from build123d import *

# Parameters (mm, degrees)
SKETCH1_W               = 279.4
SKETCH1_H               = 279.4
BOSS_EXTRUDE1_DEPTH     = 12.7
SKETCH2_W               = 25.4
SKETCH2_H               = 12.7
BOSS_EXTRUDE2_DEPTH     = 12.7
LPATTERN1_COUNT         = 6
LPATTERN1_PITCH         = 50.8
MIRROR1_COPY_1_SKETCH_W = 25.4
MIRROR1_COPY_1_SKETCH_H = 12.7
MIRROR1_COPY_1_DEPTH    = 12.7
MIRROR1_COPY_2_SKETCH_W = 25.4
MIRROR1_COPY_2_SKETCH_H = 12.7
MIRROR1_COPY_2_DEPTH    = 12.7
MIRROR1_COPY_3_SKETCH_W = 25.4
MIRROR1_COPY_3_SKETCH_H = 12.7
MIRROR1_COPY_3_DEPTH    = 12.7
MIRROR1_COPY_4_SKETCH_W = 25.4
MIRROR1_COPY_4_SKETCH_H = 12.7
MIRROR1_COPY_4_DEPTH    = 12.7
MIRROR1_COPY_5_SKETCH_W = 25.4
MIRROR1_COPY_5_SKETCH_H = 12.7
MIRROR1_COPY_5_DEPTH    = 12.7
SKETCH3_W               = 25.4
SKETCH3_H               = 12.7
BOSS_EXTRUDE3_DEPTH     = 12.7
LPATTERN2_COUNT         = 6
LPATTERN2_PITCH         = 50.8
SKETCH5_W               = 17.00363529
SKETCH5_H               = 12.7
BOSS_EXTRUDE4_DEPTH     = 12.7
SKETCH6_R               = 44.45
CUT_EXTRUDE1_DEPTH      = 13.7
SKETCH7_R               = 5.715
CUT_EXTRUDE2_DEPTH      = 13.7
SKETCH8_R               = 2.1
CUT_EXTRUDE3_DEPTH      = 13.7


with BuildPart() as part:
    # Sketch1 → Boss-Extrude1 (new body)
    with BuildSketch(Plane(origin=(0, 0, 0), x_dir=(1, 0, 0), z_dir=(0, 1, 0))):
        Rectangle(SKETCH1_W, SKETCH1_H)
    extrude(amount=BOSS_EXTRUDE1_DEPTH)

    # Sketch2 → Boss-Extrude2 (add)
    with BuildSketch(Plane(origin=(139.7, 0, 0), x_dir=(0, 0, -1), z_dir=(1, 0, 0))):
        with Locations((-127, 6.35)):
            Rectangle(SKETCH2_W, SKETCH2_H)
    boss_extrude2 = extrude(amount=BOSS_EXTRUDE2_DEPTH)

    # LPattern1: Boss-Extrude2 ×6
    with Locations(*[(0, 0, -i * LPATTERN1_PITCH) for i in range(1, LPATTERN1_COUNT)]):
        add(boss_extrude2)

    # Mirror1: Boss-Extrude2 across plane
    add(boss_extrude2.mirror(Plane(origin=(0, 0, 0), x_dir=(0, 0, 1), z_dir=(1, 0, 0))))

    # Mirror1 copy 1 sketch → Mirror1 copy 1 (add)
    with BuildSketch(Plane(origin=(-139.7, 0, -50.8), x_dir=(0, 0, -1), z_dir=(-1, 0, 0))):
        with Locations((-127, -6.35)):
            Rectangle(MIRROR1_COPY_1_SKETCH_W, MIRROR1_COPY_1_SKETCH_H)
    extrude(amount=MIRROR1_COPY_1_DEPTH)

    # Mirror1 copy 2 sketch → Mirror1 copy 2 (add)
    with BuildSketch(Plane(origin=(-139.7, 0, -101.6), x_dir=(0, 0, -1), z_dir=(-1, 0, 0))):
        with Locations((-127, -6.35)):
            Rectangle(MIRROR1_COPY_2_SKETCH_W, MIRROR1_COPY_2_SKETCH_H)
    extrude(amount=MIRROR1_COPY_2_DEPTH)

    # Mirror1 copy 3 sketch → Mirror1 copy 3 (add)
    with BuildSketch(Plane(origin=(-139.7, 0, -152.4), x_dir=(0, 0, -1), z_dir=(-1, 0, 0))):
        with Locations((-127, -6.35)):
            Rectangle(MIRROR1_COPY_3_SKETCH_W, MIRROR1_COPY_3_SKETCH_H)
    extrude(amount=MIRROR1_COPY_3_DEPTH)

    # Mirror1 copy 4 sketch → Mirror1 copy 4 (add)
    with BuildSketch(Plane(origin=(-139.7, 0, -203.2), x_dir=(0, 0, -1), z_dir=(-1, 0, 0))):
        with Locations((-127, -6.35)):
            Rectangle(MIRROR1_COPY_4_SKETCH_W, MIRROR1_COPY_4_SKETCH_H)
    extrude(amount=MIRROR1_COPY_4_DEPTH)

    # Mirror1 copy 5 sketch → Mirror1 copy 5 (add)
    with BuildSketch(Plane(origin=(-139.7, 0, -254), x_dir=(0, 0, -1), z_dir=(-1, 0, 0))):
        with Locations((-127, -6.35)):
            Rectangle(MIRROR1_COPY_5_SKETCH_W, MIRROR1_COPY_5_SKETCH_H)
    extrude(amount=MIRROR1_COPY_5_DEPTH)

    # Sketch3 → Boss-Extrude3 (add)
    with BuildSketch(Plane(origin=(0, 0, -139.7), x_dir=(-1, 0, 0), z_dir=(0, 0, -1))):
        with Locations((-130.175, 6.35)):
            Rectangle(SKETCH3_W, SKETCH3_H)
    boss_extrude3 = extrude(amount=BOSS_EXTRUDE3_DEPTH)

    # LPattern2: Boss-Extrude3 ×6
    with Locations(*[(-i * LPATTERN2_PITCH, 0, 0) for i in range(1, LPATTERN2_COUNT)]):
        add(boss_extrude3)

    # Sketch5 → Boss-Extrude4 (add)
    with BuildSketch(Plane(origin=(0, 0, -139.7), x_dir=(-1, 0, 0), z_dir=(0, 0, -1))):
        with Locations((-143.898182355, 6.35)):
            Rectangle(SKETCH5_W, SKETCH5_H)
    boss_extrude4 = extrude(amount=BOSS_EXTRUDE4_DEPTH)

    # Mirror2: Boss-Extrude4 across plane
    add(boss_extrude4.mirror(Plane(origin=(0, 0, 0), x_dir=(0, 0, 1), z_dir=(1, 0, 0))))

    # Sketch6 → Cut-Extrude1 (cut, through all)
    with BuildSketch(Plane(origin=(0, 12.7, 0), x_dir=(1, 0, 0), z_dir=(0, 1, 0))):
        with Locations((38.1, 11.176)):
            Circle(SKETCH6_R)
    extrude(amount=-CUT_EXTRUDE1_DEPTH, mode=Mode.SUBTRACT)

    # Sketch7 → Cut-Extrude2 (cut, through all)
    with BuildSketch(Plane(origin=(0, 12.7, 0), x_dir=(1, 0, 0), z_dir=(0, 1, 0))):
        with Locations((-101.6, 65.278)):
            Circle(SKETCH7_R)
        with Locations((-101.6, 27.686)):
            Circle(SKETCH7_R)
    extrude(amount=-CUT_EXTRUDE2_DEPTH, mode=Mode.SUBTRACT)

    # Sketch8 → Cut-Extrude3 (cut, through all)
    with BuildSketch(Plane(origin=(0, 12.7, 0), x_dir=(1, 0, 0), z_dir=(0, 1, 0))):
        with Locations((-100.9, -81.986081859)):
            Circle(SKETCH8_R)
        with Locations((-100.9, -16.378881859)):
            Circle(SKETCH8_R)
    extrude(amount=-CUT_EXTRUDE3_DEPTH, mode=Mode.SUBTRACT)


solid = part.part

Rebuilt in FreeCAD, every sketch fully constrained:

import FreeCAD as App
import Part
import Sketcher
Q = App.Units.Quantity


def add_polygon(sketch, points):
    """Adds a closed chain of lines whose ends are joined by coincident constraints."""
    first, n = sketch.GeometryCount, len(points)
    for a, b in zip(points, points[1:] + points[:1]):
        sketch.addGeometry(Part.LineSegment(App.Vector(*a, 0), App.Vector(*b, 0)), False)
    for i in range(n):
        sketch.addConstraint(Sketcher.Constraint("Coincident", first + i, 2, first + (i + 1) % n, 1))

doc = App.newDocument("Part")
body = doc.addObject("PartDesign::Body", "Body")

# Sketch on XZ plane
sketch1 = body.newObject("Sketcher::SketchObject", "Sketch")
sketch1.AttachmentSupport = (doc.getObject("XZ_Plane"), [""])
sketch1.MapMode = "FlatFace"
add_polygon(sketch1, [(-140, -140), (-140, 140), (140, 140), (140, -140)])  # lines 0-3
sketch1.addConstraint(Sketcher.Constraint("Vertical", 0))
sketch1.addConstraint(Sketcher.Constraint("Horizontal", 1))
sketch1.addConstraint(Sketcher.Constraint("Vertical", 2))
sketch1.addConstraint(Sketcher.Constraint("Horizontal", 3))
sketch1.addConstraint(Sketcher.Constraint("Symmetric", 0, 2, 2, 2, -1, 1))
sketch1.addConstraint(Sketcher.Constraint("Equal", 3, 0))
sketch1.addConstraint(Sketcher.Constraint("DistanceX", 1, 1, 1, 2, Q("11 in")))
pad1 = body.newObject("PartDesign::Pad", "Pad")
pad1.Profile = sketch1
pad1.Length = Q("0.5 in")
pad1.Reversed = True

# Sketch on YZ plane
sketch2 = body.newObject("Sketcher::SketchObject", "Sketch001")
sketch2.AttachmentSupport = (doc.getObject("YZ_Plane"), [""])
sketch2.MapMode = "FlatFace"
sketch2.AttachmentOffset = App.Placement(App.Vector(0, 0, 5.5 * 25.4), App.Rotation())
add_polygon(sketch2, [(13, 140), (0, 140), (0, 114), (13, 114)])  # lines 0-3
sketch2.addConstraint(Sketcher.Constraint("Horizontal", 0))
sketch2.addConstraint(Sketcher.Constraint("Vertical", 1))
sketch2.addConstraint(Sketcher.Constraint("Horizontal", 2))
sketch2.addConstraint(Sketcher.Constraint("Vertical", 3))
sketch2.addConstraint(Sketcher.Constraint("PointOnObject", 0, 2, -2))
sketch2.addConstraint(Sketcher.Constraint("DistanceY", 1, 2, 1, 1, Q("1 in")))
sketch2.addConstraint(Sketcher.Constraint("DistanceX", 0, 2, 0, 1, Q("0.5 in")))
sketch2.addConstraint(Sketcher.Constraint("DistanceY", -1, 1, 0, 2, Q("5.5 in")))
pad2 = body.newObject("PartDesign::Pad", "Pad001")
pad2.Profile = sketch2
pad2.Length = Q("0.5 in")
doc.recompute()

linearpattern = body.newObject("PartDesign::LinearPattern", "LinearPattern")
linearpattern.Originals = [pad2]
linearpattern.Direction = (doc.getObject("Z_Axis"), [""])
linearpattern.Mode = "offset"
linearpattern.Offset = Q("2 in")
linearpattern.Occurrences = 6
linearpattern.Reversed = True
body.Tip = linearpattern
doc.recompute()

mirrored = body.newObject("PartDesign::Mirrored", "Mirrored")
mirrored.Originals = [pad2]
mirrored.MirrorPlane = (doc.getObject("YZ_Plane"), [""])
body.Tip = mirrored

# Sketch on YZ plane
sketch3 = body.newObject("Sketcher::SketchObject", "Sketch002")
sketch3.AttachmentSupport = (doc.getObject("YZ_Plane"), [""])
sketch3.MapMode = "FlatFace"
sketch3.AttachmentOffset = App.Placement(App.Vector(0, 0, -5.5 * 25.4), App.Rotation())
add_polygon(sketch3, [(0, 89), (13, 89), (13, 64), (0, 64)])  # lines 0-3
sketch3.addConstraint(Sketcher.Constraint("Horizontal", 0))
sketch3.addConstraint(Sketcher.Constraint("Vertical", 1))
sketch3.addConstraint(Sketcher.Constraint("Horizontal", 2))
sketch3.addConstraint(Sketcher.Constraint("Vertical", 3))
sketch3.addConstraint(Sketcher.Constraint("PointOnObject", 2, 2, -2))
sketch3.addConstraint(Sketcher.Constraint("DistanceY", 1, 2, 1, 1, Q("1 in")))
sketch3.addConstraint(Sketcher.Constraint("DistanceX", 0, 1, 0, 2, Q("0.5 in")))
sketch3.addConstraint(Sketcher.Constraint("DistanceY", -1, 1, 0, 2, Q("3.5 in")))
pad3 = body.newObject("PartDesign::Pad", "Pad002")
pad3.Profile = sketch3
pad3.Length = Q("0.5 in")
pad3.Reversed = True

# Sketch on YZ plane
sketch4 = body.newObject("Sketcher::SketchObject", "Sketch003")
sketch4.AttachmentSupport = (doc.getObject("YZ_Plane"), [""])
sketch4.MapMode = "FlatFace"
sketch4.AttachmentOffset = App.Placement(App.Vector(0, 0, -5.5 * 25.4), App.Rotation())
add_polygon(sketch4, [(0, 38), (13, 38), (13, 13), (0, 13)])  # lines 0-3
sketch4.addConstraint(Sketcher.Constraint("Horizontal", 0))
sketch4.addConstraint(Sketcher.Constraint("Vertical", 1))
sketch4.addConstraint(Sketcher.Constraint("Horizontal", 2))
sketch4.addConstraint(Sketcher.Constraint("Vertical", 3))
sketch4.addConstraint(Sketcher.Constraint("PointOnObject", 2, 2, -2))
sketch4.addConstraint(Sketcher.Constraint("DistanceY", 1, 2, 1, 1, Q("1 in")))
sketch4.addConstraint(Sketcher.Constraint("DistanceX", 0, 1, 0, 2, Q("0.5 in")))
sketch4.addConstraint(Sketcher.Constraint("DistanceY", -1, 1, 0, 2, Q("1.5 in")))
pad4 = body.newObject("PartDesign::Pad", "Pad003")
pad4.Profile = sketch4
pad4.Length = Q("0.5 in")
pad4.Reversed = True

# Sketch on YZ plane
sketch5 = body.newObject("Sketcher::SketchObject", "Sketch004")
sketch5.AttachmentSupport = (doc.getObject("YZ_Plane"), [""])
sketch5.MapMode = "FlatFace"
sketch5.AttachmentOffset = App.Placement(App.Vector(0, 0, -5.5 * 25.4), App.Rotation())
add_polygon(sketch5, [(0, -13), (13, -13), (13, -38), (0, -38)])  # lines 0-3
sketch5.addConstraint(Sketcher.Constraint("Horizontal", 0))
sketch5.addConstraint(Sketcher.Constraint("Vertical", 1))
sketch5.addConstraint(Sketcher.Constraint("Horizontal", 2))
sketch5.addConstraint(Sketcher.Constraint("Vertical", 3))
sketch5.addConstraint(Sketcher.Constraint("PointOnObject", 2, 2, -2))
sketch5.addConstraint(Sketcher.Constraint("DistanceY", 1, 2, 1, 1, Q("1 in")))
sketch5.addConstraint(Sketcher.Constraint("DistanceX", 0, 1, 0, 2, Q("0.5 in")))
sketch5.addConstraint(Sketcher.Constraint("DistanceY", 0, 2, -1, 1, Q("0.5 in")))
pad5 = body.newObject("PartDesign::Pad", "Pad004")
pad5.Profile = sketch5
pad5.Length = Q("0.5 in")
pad5.Reversed = True

# Sketch on YZ plane
sketch6 = body.newObject("Sketcher::SketchObject", "Sketch005")
sketch6.AttachmentSupport = (doc.getObject("YZ_Plane"), [""])
sketch6.MapMode = "FlatFace"
sketch6.AttachmentOffset = App.Placement(App.Vector(0, 0, -5.5 * 25.4), App.Rotation())
add_polygon(sketch6, [(0, -64), (13, -64), (13, -89), (0, -89)])  # lines 0-3
sketch6.addConstraint(Sketcher.Constraint("Horizontal", 0))
sketch6.addConstraint(Sketcher.Constraint("Vertical", 1))
sketch6.addConstraint(Sketcher.Constraint("Horizontal", 2))
sketch6.addConstraint(Sketcher.Constraint("Vertical", 3))
sketch6.addConstraint(Sketcher.Constraint("PointOnObject", 2, 2, -2))
sketch6.addConstraint(Sketcher.Constraint("DistanceY", 1, 2, 1, 1, Q("1 in")))
sketch6.addConstraint(Sketcher.Constraint("DistanceX", 0, 1, 0, 2, Q("0.5 in")))
sketch6.addConstraint(Sketcher.Constraint("DistanceY", 0, 2, -1, 1, Q("2.5 in")))
pad6 = body.newObject("PartDesign::Pad", "Pad005")
pad6.Profile = sketch6
pad6.Length = Q("0.5 in")
pad6.Reversed = True

# Sketch on YZ plane
sketch7 = body.newObject("Sketcher::SketchObject", "Sketch006")
sketch7.AttachmentSupport = (doc.getObject("YZ_Plane"), [""])
sketch7.MapMode = "FlatFace"
sketch7.AttachmentOffset = App.Placement(App.Vector(0, 0, -5.5 * 25.4), App.Rotation())
add_polygon(sketch7, [(0, -114), (13, -114), (13, -140), (0, -140)])  # lines 0-3
sketch7.addConstraint(Sketcher.Constraint("Horizontal", 0))
sketch7.addConstraint(Sketcher.Constraint("Vertical", 1))
sketch7.addConstraint(Sketcher.Constraint("Horizontal", 2))
sketch7.addConstraint(Sketcher.Constraint("Vertical", 3))
sketch7.addConstraint(Sketcher.Constraint("PointOnObject", 2, 2, -2))
sketch7.addConstraint(Sketcher.Constraint("DistanceY", 1, 2, 1, 1, Q("1 in")))
sketch7.addConstraint(Sketcher.Constraint("DistanceX", 0, 1, 0, 2, Q("0.5 in")))
sketch7.addConstraint(Sketcher.Constraint("DistanceY", 0, 2, -1, 1, Q("4.5 in")))
pad7 = body.newObject("PartDesign::Pad", "Pad006")
pad7.Profile = sketch7
pad7.Length = Q("0.5 in")
pad7.Reversed = True

# Sketch on XY plane
sketch8 = body.newObject("Sketcher::SketchObject", "Sketch007")
sketch8.AttachmentSupport = (doc.getObject("XY_Plane"), [""])
sketch8.MapMode = "FlatFace"
sketch8.AttachmentOffset = App.Placement(App.Vector(0, 0, -5.5 * 25.4), App.Rotation())
add_polygon(sketch8, [(143, 13), (143, 0), (117, 0), (117, 13)])  # lines 0-3
sketch8.addConstraint(Sketcher.Constraint("Vertical", 0))
sketch8.addConstraint(Sketcher.Constraint("Horizontal", 1))
sketch8.addConstraint(Sketcher.Constraint("Vertical", 2))
sketch8.addConstraint(Sketcher.Constraint("Horizontal", 3))
sketch8.addConstraint(Sketcher.Constraint("PointOnObject", 0, 2, -1))
sketch8.addConstraint(Sketcher.Constraint("DistanceX", 1, 2, 1, 1, Q("1 in")))
sketch8.addConstraint(Sketcher.Constraint("DistanceY", 0, 2, 0, 1, Q("0.5 in")))
sketch8.addConstraint(Sketcher.Constraint("DistanceX", -1, 1, 0, 2, Q("5.625 in")))
pad8 = body.newObject("PartDesign::Pad", "Pad007")
pad8.Profile = sketch8
pad8.Length = Q("0.5 in")
pad8.Reversed = True
doc.recompute()

linearpattern2 = body.newObject("PartDesign::LinearPattern", "LinearPattern001")
linearpattern2.Originals = [pad8]
linearpattern2.Direction = (doc.getObject("X_Axis"), [""])
linearpattern2.Mode = "offset"
linearpattern2.Offset = Q("2 in")
linearpattern2.Occurrences = 6
linearpattern2.Reversed = True
body.Tip = linearpattern2

# Sketch on XY plane
sketch9 = body.newObject("Sketcher::SketchObject", "Sketch008")
sketch9.AttachmentSupport = (doc.getObject("XY_Plane"), [""])
sketch9.MapMode = "FlatFace"
sketch9.AttachmentOffset = App.Placement(App.Vector(0, 0, -5.5 * 25.4), App.Rotation())
add_polygon(sketch9, [(152, 13), (152, 0), (135, 0), (135, 13)])  # lines 0-3
sketch9.addConstraint(Sketcher.Constraint("Vertical", 0))
sketch9.addConstraint(Sketcher.Constraint("Horizontal", 1))
sketch9.addConstraint(Sketcher.Constraint("Vertical", 2))
sketch9.addConstraint(Sketcher.Constraint("Horizontal", 3))
sketch9.addConstraint(Sketcher.Constraint("PointOnObject", 0, 2, -1))
sketch9.addConstraint(Sketcher.Constraint("DistanceY", 0, 2, 0, 1, Q("0.5 in")))
sketch9.addConstraint(Sketcher.Constraint("DistanceX", -1, 1, 0, 2, Q("6 in")))
sketch9.addConstraint(Sketcher.Constraint("DistanceX", 1, 2, 1, 1, 17.003635))
pad9 = body.newObject("PartDesign::Pad", "Pad008")
pad9.Profile = sketch9
pad9.Length = Q("0.5 in")
pad9.Reversed = True
doc.recompute()

mirrored2 = body.newObject("PartDesign::Mirrored", "Mirrored001")
mirrored2.Originals = [pad9]
mirrored2.MirrorPlane = (doc.getObject("YZ_Plane"), [""])
body.Tip = mirrored2

# Sketch on XZ plane
sketch10 = body.newObject("Sketcher::SketchObject", "Sketch009")
sketch10.AttachmentSupport = (doc.getObject("XZ_Plane"), [""])
sketch10.MapMode = "FlatFace"
sketch10.AttachmentOffset = App.Placement(App.Vector(0, 0, -0.5 * 25.4), App.Rotation())
sketch10.addGeometry(Part.Circle(App.Vector(38, -11, 0), App.Vector(0, 0, 1), 44), False)
sketch10.addConstraint(Sketcher.Constraint("Diameter", 0, Q("3.5 in")))
sketch10.addConstraint(Sketcher.Constraint("DistanceX", -1, 1, 0, 3, Q("1.5 in")))
sketch10.addConstraint(Sketcher.Constraint("DistanceY", 0, 3, -1, 1, Q("0.44 in")))
pocket1 = body.newObject("PartDesign::Pocket", "Pocket")
pocket1.Profile = sketch10
pocket1.Type = "ThroughAll"
pocket1.Reversed = True

# Sketch on XZ plane
sketch11 = body.newObject("Sketcher::SketchObject", "Sketch010")
sketch11.AttachmentSupport = (doc.getObject("XZ_Plane"), [""])
sketch11.MapMode = "FlatFace"
sketch11.AttachmentOffset = App.Placement(App.Vector(0, 0, -0.5 * 25.4), App.Rotation())
sketch11.addGeometry(Part.Circle(App.Vector(-102, -65, 0), App.Vector(0, 0, 1), 6), False)
sketch11.addGeometry(Part.Circle(App.Vector(-102, -28, 0), App.Vector(0, 0, 1), 6), False)
sketch11.addConstraint(Sketcher.Constraint("Equal", 0, 1))
sketch11.addConstraint(Sketcher.Constraint("Vertical", 0, 3, 1, 3))
sketch11.addConstraint(Sketcher.Constraint("Diameter", 0, Q("0.45 in")))
sketch11.addConstraint(Sketcher.Constraint("DistanceX", 0, 3, -1, 1, Q("4 in")))
sketch11.addConstraint(Sketcher.Constraint("DistanceY", 0, 3, -1, 1, Q("2.57 in")))
sketch11.addConstraint(Sketcher.Constraint("DistanceY", 1, 3, -1, 1, Q("1.09 in")))
pocket2 = body.newObject("PartDesign::Pocket", "Pocket001")
pocket2.Profile = sketch11
pocket2.Type = "ThroughAll"
pocket2.Reversed = True

# Sketch on XZ plane
sketch12 = body.newObject("Sketcher::SketchObject", "Sketch011")
sketch12.AttachmentSupport = (doc.getObject("XZ_Plane"), [""])
sketch12.MapMode = "FlatFace"
sketch12.AttachmentOffset = App.Placement(App.Vector(0, 0, -0.5 * 25.4), App.Rotation())
sketch12.addGeometry(Part.Circle(App.Vector(-100.9, 82, 0), App.Vector(0, 0, 1), 2.1), False)
sketch12.addGeometry(Part.Circle(App.Vector(-100.9, 16.4, 0), App.Vector(0, 0, 1), 2.1), False)
sketch12.addConstraint(Sketcher.Constraint("Equal", 0, 1))
sketch12.addConstraint(Sketcher.Constraint("Vertical", 0, 3, 1, 3))
sketch12.addConstraint(Sketcher.Constraint("Diameter", 0, 4.2))
sketch12.addConstraint(Sketcher.Constraint("DistanceX", 0, 3, -1, 1, 100.9))
sketch12.addConstraint(Sketcher.Constraint("DistanceY", 1, 3, 0, 3, 65.6072))
sketch12.addConstraint(Sketcher.Constraint("DistanceY", -1, 1, 0, 3, 81.986082))
pocket3 = body.newObject("PartDesign::Pocket", "Pocket002")
pocket3.Profile = sketch12
pocket3.Type = "ThroughAll"
pocket3.Reversed = True

doc.recompute()
